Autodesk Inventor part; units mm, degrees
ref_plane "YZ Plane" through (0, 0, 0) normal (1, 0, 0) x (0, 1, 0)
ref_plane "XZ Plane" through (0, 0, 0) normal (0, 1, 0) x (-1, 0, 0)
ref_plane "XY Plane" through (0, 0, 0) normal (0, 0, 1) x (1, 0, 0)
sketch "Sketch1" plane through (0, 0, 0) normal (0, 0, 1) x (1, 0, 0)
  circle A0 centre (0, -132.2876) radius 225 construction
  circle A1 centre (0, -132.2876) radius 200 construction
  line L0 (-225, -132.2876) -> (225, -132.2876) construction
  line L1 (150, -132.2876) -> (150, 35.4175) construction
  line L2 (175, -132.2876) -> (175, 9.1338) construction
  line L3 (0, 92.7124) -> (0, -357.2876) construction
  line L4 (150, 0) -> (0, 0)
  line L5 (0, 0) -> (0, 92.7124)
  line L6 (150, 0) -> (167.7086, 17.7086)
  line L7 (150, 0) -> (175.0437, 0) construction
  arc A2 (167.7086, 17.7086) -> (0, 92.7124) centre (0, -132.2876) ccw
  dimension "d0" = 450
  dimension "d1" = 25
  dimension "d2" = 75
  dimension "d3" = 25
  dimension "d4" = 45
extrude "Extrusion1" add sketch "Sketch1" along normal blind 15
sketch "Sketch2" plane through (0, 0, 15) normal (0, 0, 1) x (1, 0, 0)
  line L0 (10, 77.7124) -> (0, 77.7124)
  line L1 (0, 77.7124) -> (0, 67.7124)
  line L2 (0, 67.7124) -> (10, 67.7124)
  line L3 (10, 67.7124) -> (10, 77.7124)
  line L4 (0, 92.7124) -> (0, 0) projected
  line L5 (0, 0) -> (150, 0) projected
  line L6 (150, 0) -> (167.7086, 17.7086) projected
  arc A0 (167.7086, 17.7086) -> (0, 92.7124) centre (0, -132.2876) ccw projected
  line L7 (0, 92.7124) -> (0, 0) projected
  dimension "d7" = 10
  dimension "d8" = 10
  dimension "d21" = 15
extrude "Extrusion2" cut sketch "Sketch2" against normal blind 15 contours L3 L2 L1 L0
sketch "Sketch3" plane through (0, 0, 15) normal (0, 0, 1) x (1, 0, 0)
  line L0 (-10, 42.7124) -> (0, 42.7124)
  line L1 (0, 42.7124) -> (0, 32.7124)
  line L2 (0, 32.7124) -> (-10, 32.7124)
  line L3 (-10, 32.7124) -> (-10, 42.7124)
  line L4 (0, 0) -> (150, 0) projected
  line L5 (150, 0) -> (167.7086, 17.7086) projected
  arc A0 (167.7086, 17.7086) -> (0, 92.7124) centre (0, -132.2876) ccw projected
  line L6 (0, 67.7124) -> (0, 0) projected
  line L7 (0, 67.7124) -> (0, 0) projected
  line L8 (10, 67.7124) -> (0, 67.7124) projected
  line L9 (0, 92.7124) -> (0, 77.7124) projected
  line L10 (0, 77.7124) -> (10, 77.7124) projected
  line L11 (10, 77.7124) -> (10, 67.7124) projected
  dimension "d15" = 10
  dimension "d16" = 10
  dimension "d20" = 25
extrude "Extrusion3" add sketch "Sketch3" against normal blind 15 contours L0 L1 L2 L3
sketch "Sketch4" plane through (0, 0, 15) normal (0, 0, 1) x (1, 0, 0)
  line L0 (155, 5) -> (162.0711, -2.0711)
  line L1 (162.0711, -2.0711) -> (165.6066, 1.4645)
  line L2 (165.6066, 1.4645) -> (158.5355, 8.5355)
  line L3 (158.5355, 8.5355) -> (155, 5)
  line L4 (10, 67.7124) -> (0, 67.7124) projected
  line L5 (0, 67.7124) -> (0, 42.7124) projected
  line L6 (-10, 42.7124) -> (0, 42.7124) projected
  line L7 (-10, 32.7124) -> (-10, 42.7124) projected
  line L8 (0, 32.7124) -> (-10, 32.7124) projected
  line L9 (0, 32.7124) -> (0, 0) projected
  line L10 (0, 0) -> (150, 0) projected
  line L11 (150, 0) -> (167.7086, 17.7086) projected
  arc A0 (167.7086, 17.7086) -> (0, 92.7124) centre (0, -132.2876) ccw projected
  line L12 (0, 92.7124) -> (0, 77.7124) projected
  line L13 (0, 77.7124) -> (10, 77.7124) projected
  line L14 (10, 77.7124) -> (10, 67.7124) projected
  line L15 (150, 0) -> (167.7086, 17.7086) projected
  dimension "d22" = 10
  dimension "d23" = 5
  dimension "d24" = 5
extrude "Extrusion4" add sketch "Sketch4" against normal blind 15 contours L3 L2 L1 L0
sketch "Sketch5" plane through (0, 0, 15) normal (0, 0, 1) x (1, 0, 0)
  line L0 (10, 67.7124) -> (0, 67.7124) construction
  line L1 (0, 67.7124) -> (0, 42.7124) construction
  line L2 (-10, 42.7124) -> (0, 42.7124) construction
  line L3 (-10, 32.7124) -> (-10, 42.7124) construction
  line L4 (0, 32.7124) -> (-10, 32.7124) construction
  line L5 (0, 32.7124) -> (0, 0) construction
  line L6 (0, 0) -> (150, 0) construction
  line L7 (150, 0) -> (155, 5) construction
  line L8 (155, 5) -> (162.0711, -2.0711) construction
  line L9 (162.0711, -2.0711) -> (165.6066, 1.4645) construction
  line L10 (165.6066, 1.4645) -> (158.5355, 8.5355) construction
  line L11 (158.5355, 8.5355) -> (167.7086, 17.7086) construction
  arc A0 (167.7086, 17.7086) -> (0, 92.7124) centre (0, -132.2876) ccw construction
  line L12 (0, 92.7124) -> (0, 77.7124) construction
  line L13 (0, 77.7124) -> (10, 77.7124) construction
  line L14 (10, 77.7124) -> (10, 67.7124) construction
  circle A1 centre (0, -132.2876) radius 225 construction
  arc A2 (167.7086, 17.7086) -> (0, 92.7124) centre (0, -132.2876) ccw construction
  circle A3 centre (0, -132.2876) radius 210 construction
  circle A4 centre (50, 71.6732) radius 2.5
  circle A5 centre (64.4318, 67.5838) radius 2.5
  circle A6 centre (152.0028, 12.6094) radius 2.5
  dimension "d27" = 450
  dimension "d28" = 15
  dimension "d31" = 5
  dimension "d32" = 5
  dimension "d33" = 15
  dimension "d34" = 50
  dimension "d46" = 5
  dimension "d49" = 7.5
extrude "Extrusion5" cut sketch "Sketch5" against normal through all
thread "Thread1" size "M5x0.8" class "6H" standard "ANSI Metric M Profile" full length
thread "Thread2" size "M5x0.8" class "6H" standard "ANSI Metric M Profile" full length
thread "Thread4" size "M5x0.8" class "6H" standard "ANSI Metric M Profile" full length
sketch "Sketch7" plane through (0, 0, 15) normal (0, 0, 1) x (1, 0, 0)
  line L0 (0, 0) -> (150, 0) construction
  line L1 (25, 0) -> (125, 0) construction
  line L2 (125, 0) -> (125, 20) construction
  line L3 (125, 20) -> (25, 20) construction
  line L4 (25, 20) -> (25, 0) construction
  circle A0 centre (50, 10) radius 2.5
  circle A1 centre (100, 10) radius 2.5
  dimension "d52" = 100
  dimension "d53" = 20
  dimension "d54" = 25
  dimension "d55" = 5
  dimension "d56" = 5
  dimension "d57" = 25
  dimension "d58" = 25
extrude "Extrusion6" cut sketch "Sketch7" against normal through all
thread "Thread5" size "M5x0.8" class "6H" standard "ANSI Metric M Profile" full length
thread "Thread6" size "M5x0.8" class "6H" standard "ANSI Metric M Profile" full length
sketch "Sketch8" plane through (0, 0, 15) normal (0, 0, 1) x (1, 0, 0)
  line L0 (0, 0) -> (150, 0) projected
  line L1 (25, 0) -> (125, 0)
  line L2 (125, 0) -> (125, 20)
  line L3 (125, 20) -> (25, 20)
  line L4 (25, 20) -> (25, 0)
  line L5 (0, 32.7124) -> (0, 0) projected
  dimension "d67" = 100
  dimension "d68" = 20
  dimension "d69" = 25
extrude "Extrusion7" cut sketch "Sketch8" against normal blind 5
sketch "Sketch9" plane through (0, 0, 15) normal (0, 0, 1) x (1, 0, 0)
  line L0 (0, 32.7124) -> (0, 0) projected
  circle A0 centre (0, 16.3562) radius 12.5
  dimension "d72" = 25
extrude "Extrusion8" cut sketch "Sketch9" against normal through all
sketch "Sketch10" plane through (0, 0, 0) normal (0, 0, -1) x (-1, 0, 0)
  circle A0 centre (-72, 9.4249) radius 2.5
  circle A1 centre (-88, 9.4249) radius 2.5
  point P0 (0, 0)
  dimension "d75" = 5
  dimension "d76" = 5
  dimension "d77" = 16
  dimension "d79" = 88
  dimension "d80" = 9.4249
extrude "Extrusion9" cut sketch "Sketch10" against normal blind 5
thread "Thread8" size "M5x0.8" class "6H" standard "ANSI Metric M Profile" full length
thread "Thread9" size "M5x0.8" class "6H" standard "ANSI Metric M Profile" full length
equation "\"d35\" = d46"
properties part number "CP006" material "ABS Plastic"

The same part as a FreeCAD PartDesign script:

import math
import FreeCAD as App
import Part
import Sketcher

V = App.Vector
Q = App.Units.Quantity


def add_polygon(sketch, points):
    """Adds a closed chain of lines whose ends are joined by coincident constraints."""
    first, n = sketch.GeometryCount, len(points)
    for a, b in zip(points, points[1:] + points[:1]):
        sketch.addGeometry(Part.LineSegment(App.Vector(*a, 0), App.Vector(*b, 0)), False)
    for i in range(n):
        sketch.addConstraint(Sketcher.Constraint("Coincident", first + i, 2, first + (i + 1) % n, 1))

doc = App.newDocument("Part")
body = doc.addObject("PartDesign::Body", "Body")

# Sketch on XY plane
sketch1 = doc.addObject("Sketcher::SketchObject", "Sketch")
body.addObject(sketch1)
sketch1.AttachmentSupport = (doc.XY_Plane, [""])
sketch1.MapMode = "FlatFace"
sketch1.addGeometry([
    Part.LineSegment(V(0, 0, 0), V(150, 0, 0)),
    Part.LineSegment(V(150, 0, 0), V(167.7086, 17.7086, 0)),
    Part.ArcOfCircle(Part.Circle(V(0, -132.2876, 0), V(0, 0, 1), 225), math.radians(41.808999), math.radians(90)),
    Part.LineSegment(V(0, 92.7124, 0), V(0, 0, 0)),
], False)
sketch1.addConstraint([
    Sketcher.Constraint("Coincident", 0, 2, 1, 1),
    Sketcher.Constraint("Coincident", 1, 2, 2, 1),
    Sketcher.Constraint("Coincident", 2, 2, 3, 1),
    Sketcher.Constraint("Coincident", 3, 2, 0, 1),
    Sketcher.Constraint("Horizontal", 0),
    Sketcher.Constraint("Vertical", 3),
    Sketcher.Constraint("Coincident", 3, 2, -1, 1),
    Sketcher.Constraint("PointOnObject", 2, 3, -2),
    Sketcher.Constraint("Radius", 2, 225.0),
    Sketcher.Constraint("Angle", 1, Q("45 deg")),
    Sketcher.Constraint("DistanceX", 0, 1, 0, 2, 150.0),
    Sketcher.Constraint("DistanceY", 3, 2, 3, 1, 92.7124),
])
pad1 = doc.addObject("PartDesign::Pad", "Pad")
body.addObject(pad1)
pad1.Profile = sketch1
pad1.Length = 15

# Sketch on XY plane
sketch2 = doc.addObject("Sketcher::SketchObject", "Sketch001")
body.addObject(sketch2)
sketch2.AttachmentSupport = (doc.XY_Plane, [""])
sketch2.MapMode = "FlatFace"
sketch2.AttachmentOffset = App.Placement(V(0, 0, 15), App.Rotation())
add_polygon(sketch2, [(10, 67.7124), (10, 77.7124), (0, 77.7124), (0, 67.7124)])  # lines 0-3
sketch2.addConstraint([
    Sketcher.Constraint("Vertical", 0),
    Sketcher.Constraint("Horizontal", 1),
    Sketcher.Constraint("Vertical", 2),
    Sketcher.Constraint("Horizontal", 3),
    Sketcher.Constraint("PointOnObject", 1, 2, -2),
    Sketcher.Constraint("Equal", 3, 0),
    Sketcher.Constraint("DistanceX", 1, 2, 1, 1, 10.0),
    Sketcher.Constraint("DistanceY", -1, 1, 0, 2, 77.7124),
])
pocket1 = doc.addObject("PartDesign::Pocket", "Pocket")
body.addObject(pocket1)
pocket1.Profile = sketch2
pocket1.Length = 15

# Sketch on XY plane
sketch3 = doc.addObject("Sketcher::SketchObject", "Sketch002")
body.addObject(sketch3)
sketch3.AttachmentSupport = (doc.XY_Plane, [""])
sketch3.MapMode = "FlatFace"
sketch3.AttachmentOffset = App.Placement(V(0, 0, 15), App.Rotation())
add_polygon(sketch3, [(0, 42.7124), (-10, 42.7124), (-10, 32.7124), (0, 32.7124)])  # lines 0-3
sketch3.addConstraint([
    Sketcher.Constraint("Horizontal", 0),
    Sketcher.Constraint("Vertical", 1),
    Sketcher.Constraint("Horizontal", 2),
    Sketcher.Constraint("Vertical", 3),
    Sketcher.Constraint("PointOnObject", 2, 2, -2),
    Sketcher.Constraint("Equal", 2, 1),
    Sketcher.Constraint("DistanceX", 0, 2, 0, 1, 10.0),
    Sketcher.Constraint("DistanceY", -1, 1, 0, 2, 42.7124),
])
pad2 = doc.addObject("PartDesign::Pad", "Pad001")
body.addObject(pad2)
pad2.Profile = sketch3
pad2.Length = 15
pad2.Reversed = True

# Sketch on XY plane
sketch4 = doc.addObject("Sketcher::SketchObject", "Sketch003")
body.addObject(sketch4)
sketch4.AttachmentSupport = (doc.XY_Plane, [""])
sketch4.MapMode = "FlatFace"
sketch4.AttachmentOffset = App.Placement(V(0, 0, 15), App.Rotation())
add_polygon(sketch4, [(158.5355, 8.5355), (155, 5), (162.0711, -2.0711), (165.6066, 1.4645)])  # lines 0-3
sketch4.addConstraint([
    Sketcher.Constraint("Perpendicular", 0, 1),
    Sketcher.Constraint("Perpendicular", 1, 2),
    Sketcher.Constraint("Perpendicular", 2, 3),
    Sketcher.Constraint("Distance", 0, 5.0),
    Sketcher.Constraint("Distance", 1, 10.0),
    Sketcher.Constraint("DistanceY", -1, 1, 0, 2, 5.0),
    Sketcher.Constraint("Angle", 0, Q("-135 deg")),
    Sketcher.Constraint("DistanceX", -1, 1, 0, 2, 155.0),
])
pad3 = doc.addObject("PartDesign::Pad", "Pad002")
body.addObject(pad3)
pad3.Profile = sketch4
pad3.Length = 15
pad3.Reversed = True

# Sketch on XY plane
sketch5 = doc.addObject("Sketcher::SketchObject", "Sketch004")
body.addObject(sketch5)
sketch5.AttachmentSupport = (doc.XY_Plane, [""])
sketch5.MapMode = "FlatFace"
sketch5.AttachmentOffset = App.Placement(V(0, 0, 15), App.Rotation())
sketch5.addGeometry([
    Part.Circle(V(50, 71.6732, 0), V(0, 0, 1), 2.5),
    Part.Circle(V(64.4318, 67.5838, 0), V(0, 0, 1), 2.5),
    Part.Circle(V(152.0028, 12.6094, 0), V(0, 0, 1), 2.5),
], False)
sketch5.addConstraint([
    Sketcher.Constraint("Equal", 0, 1),
    Sketcher.Constraint("Equal", 1, 2),
    Sketcher.Constraint("Diameter", 0, 5.0),
    Sketcher.Constraint("DistanceX", -1, 1, 0, 3, 50.0),
    Sketcher.Constraint("DistanceX", 1, 3, 2, 3, 87.571),
    Sketcher.Constraint("DistanceY", -1, 1, 0, 3, 71.6732),
    Sketcher.Constraint("DistanceX", -1, 1, 1, 3, 64.4318),
    Sketcher.Constraint("DistanceY", -1, 1, 1, 3, 67.5838),
    Sketcher.Constraint("DistanceY", -1, 1, 2, 3, 12.6094),
])
pocket2 = doc.addObject("PartDesign::Pocket", "Pocket001")
body.addObject(pocket2)
pocket2.Profile = sketch5
pocket2.Type = "ThroughAll"

# Sketch on XY plane
sketch6 = doc.addObject("Sketcher::SketchObject", "Sketch005")
body.addObject(sketch6)
sketch6.AttachmentSupport = (doc.XY_Plane, [""])
sketch6.MapMode = "FlatFace"
sketch6.AttachmentOffset = App.Placement(V(0, 0, 15), App.Rotation())
sketch6.addGeometry([
    Part.Circle(V(50, 10, 0), V(0, 0, 1), 2.5),
    Part.Circle(V(100, 10, 0), V(0, 0, 1), 2.5),
], False)
sketch6.addConstraint([
    Sketcher.Constraint("Equal", 0, 1),
    Sketcher.Constraint("Horizontal", 0, 3, 1, 3),
    Sketcher.Constraint("Diameter", 0, 5.0),
    Sketcher.Constraint("DistanceX", -1, 1, 1, 3, 100.0),
    Sketcher.Constraint("DistanceX", -1, 1, 0, 3, 50.0),
    Sketcher.Constraint("DistanceY", -1, 1, 0, 3, 10.0),
])
pocket3 = doc.addObject("PartDesign::Pocket", "Pocket002")
body.addObject(pocket3)
pocket3.Profile = sketch6
pocket3.Type = "ThroughAll"

# Sketch on XY plane
sketch7 = doc.addObject("Sketcher::SketchObject", "Sketch006")
body.addObject(sketch7)
sketch7.AttachmentSupport = (doc.XY_Plane, [""])
sketch7.MapMode = "FlatFace"
sketch7.AttachmentOffset = App.Placement(V(0, 0, 15), App.Rotation())
add_polygon(sketch7, [(25, 20), (25, 0), (125, 0), (125, 20)])  # lines 0-3
sketch7.addConstraint([
    Sketcher.Constraint("Vertical", 0),
    Sketcher.Constraint("Horizontal", 1),
    Sketcher.Constraint("Vertical", 2),
    Sketcher.Constraint("Horizontal", 3),
    Sketcher.Constraint("PointOnObject", 0, 2, -1),
    Sketcher.Constraint("DistanceX", 1, 1, 1, 2, 100.0),
    Sketcher.Constraint("DistanceY", 0, 2, 0, 1, 20.0),
    Sketcher.Constraint("DistanceX", -1, 1, 0, 2, 25.0),
])
pocket4 = doc.addObject("PartDesign::Pocket", "Pocket003")
body.addObject(pocket4)
pocket4.Profile = sketch7
pocket4.Length = 5

# Sketch on XY plane
sketch8 = doc.addObject("Sketcher::SketchObject", "Sketch007")
body.addObject(sketch8)
sketch8.AttachmentSupport = (doc.XY_Plane, [""])
sketch8.MapMode = "FlatFace"
sketch8.AttachmentOffset = App.Placement(V(0, 0, 15), App.Rotation())
sketch8.addGeometry(Part.Circle(V(0, 16.3562, 0), V(0, 0, 1), 12.5), False)
sketch8.addConstraint([
    Sketcher.Constraint("PointOnObject", 0, 3, -2),
    Sketcher.Constraint("Diameter", 0, 25.0),
    Sketcher.Constraint("DistanceY", -1, 1, 0, 3, 16.3562),
])
pocket5 = doc.addObject("PartDesign::Pocket", "Pocket004")
body.addObject(pocket5)
pocket5.Profile = sketch8
pocket5.Type = "ThroughAll"

# Sketch on XY plane
sketch9 = doc.addObject("Sketcher::SketchObject", "Sketch008")
body.addObject(sketch9)
sketch9.AttachmentSupport = (doc.XY_Plane, [""])
sketch9.MapMode = "FlatFace"
sketch9.addGeometry([
    Part.Circle(V(72, 9.4249, 0), V(0, 0, 1), 2.5),
    Part.Circle(V(88, 9.4249, 0), V(0, 0, 1), 2.5),
], False)
sketch9.addConstraint([
    Sketcher.Constraint("Equal", 0, 1),
    Sketcher.Constraint("Horizontal", 0, 3, 1, 3),
    Sketcher.Constraint("Diameter", 0, 5.0),
    Sketcher.Constraint("DistanceX", -1, 1, 1, 3, 88.0),
    Sketcher.Constraint("DistanceX", 0, 3, 1, 3, 16.0),
    Sketcher.Constraint("DistanceY", -1, 1, 0, 3, 9.425),
])
pocket6 = doc.addObject("PartDesign::Pocket", "Pocket005")
body.addObject(pocket6)
pocket6.Profile = sketch9
pocket6.Length = 5
pocket6.Reversed = True

doc.recompute()
